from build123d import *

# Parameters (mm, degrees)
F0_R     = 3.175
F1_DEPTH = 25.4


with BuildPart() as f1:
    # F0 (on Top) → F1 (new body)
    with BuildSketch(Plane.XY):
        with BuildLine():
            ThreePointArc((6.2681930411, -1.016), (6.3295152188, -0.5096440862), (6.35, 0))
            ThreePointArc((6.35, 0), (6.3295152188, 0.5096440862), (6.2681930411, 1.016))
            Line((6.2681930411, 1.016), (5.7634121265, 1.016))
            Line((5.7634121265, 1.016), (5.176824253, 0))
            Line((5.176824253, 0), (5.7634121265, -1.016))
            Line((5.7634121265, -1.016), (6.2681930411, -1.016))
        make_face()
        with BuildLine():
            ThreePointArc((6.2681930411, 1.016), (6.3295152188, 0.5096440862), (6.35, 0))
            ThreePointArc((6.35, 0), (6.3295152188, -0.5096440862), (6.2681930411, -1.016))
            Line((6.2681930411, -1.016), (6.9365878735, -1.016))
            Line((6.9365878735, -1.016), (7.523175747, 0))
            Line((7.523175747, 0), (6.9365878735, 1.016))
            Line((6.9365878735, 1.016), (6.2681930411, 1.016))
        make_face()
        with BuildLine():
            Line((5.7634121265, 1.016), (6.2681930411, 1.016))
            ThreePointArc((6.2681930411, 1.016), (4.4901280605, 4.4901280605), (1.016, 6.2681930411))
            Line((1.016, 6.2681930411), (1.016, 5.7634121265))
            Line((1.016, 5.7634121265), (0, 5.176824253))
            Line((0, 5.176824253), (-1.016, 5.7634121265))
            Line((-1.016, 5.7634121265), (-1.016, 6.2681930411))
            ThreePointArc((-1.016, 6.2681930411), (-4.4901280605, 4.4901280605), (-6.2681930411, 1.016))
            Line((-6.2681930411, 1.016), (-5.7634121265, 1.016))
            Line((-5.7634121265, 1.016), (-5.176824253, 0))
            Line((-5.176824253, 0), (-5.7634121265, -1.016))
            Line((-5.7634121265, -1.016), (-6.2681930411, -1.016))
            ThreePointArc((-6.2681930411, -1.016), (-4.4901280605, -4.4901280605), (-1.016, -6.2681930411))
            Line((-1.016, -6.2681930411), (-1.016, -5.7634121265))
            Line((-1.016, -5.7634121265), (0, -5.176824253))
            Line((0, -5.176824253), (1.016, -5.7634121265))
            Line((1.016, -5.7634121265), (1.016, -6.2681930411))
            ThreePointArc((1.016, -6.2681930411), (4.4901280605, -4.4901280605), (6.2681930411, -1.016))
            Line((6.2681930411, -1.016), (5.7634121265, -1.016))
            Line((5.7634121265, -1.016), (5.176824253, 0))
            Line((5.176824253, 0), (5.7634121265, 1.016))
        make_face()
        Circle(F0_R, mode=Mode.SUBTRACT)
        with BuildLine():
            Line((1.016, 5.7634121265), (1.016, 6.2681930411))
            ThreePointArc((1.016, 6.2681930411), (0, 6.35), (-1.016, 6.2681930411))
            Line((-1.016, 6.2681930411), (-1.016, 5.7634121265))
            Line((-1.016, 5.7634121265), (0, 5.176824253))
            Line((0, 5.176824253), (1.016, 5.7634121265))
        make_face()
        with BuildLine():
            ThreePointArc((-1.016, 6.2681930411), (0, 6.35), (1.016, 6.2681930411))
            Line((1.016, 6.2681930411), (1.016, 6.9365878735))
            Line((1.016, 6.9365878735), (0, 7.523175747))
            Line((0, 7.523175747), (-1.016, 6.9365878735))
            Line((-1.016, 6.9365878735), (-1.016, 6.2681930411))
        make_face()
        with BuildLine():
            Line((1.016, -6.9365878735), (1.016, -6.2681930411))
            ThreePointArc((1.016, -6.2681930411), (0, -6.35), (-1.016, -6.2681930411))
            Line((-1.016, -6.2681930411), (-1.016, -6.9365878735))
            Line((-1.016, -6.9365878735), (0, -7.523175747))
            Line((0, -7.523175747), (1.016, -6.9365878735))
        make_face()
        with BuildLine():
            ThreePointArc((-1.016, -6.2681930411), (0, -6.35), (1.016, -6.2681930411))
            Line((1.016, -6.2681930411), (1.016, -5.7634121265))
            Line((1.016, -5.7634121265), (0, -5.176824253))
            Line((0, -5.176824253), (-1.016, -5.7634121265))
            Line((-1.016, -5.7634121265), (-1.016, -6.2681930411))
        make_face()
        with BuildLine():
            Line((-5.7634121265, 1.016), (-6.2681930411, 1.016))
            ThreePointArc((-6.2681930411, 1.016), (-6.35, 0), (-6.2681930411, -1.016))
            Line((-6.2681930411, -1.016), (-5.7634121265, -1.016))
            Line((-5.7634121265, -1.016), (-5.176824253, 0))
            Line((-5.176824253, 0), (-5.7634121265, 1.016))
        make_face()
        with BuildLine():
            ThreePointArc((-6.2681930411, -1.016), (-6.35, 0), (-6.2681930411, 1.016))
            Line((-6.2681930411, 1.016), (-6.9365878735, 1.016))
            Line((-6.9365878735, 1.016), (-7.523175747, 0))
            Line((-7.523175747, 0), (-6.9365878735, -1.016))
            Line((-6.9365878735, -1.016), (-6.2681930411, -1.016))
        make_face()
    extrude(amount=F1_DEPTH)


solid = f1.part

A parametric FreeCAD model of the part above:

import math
import FreeCAD as App
import Part
import Sketcher
from FreeCAD import Vector
Q = App.Units.Quantity

doc = App.newDocument("Part")
params = doc.addObject("Spreadsheet::Sheet", "Params")
for row, (alias, value) in enumerate([
    ("sketch1_diameter", "0.25 in"),
    ("sketch1_radius", "0.25 in"),
    ("pad1_length", "1 in"),
], start=1):
    params.set(f"A{row}", alias)
    params.set(f"B{row}", "=" + value)
    params.setAlias(f"B{row}", alias)

body = doc.addObject("PartDesign::Body", "Body")

# Sketch on XY plane
sketch1 = body.newObject("Sketcher::SketchObject", "Sketch")
sketch1.AttachmentSupport = (doc.getObject("XY_Plane"), [""])
sketch1.MapMode = "FlatFace"
sketch1.addGeometry(Part.LineSegment(Vector(6.3, -1, 0), Vector(6.9, -1, 0)), False)
sketch1.addGeometry(Part.LineSegment(Vector(6.9, -1, 0), Vector(7.5, 0, 0)), False)
sketch1.addGeometry(Part.LineSegment(Vector(7.5, 0, 0), Vector(6.9, 1, 0)), False)
sketch1.addGeometry(Part.LineSegment(Vector(6.9, 1, 0), Vector(6.3, 1, 0)), False)
sketch1.addGeometry(Part.ArcOfCircle(Part.Circle(Vector(0, 0, 0), Vector(0, 0, 1), 6.3), math.radians(9), math.radians(81)), False)
sketch1.addGeometry(Part.LineSegment(Vector(1, 6.3, 0), Vector(1, 6.9, 0)), False)
sketch1.addGeometry(Part.LineSegment(Vector(1, 6.9, 0), Vector(0, 7.5, 0)), False)
sketch1.addGeometry(Part.LineSegment(Vector(0, 7.5, 0), Vector(-1, 6.9, 0)), False)
sketch1.addGeometry(Part.LineSegment(Vector(-1, 6.9, 0), Vector(-1, 6.3, 0)), False)
sketch1.addGeometry(Part.ArcOfCircle(Part.Circle(Vector(0, 0, 0), Vector(0, 0, 1), 6.3), math.radians(99), math.radians(171)), False)
sketch1.addGeometry(Part.LineSegment(Vector(-6.3, 1, 0), Vector(-6.9, 1, 0)), False)
sketch1.addGeometry(Part.LineSegment(Vector(-6.9, 1, 0), Vector(-7.5, 0, 0)), False)
sketch1.addGeometry(Part.LineSegment(Vector(-7.5, 0, 0), Vector(-6.9, -1, 0)), False)
sketch1.addGeometry(Part.LineSegment(Vector(-6.9, -1, 0), Vector(-6.3, -1, 0)), False)
sketch1.addGeometry(Part.ArcOfCircle(Part.Circle(Vector(0, 0, 0), Vector(0, 0, 1), 6.3), math.radians(-171), math.radians(-99)), False)
sketch1.addGeometry(Part.LineSegment(Vector(-1, -6.3, 0), Vector(-1, -6.9, 0)), False)
sketch1.addGeometry(Part.LineSegment(Vector(-1, -6.9, 0), Vector(0, -7.5, 0)), False)
sketch1.addGeometry(Part.LineSegment(Vector(0, -7.5, 0), Vector(1, -6.9, 0)), False)
sketch1.addGeometry(Part.LineSegment(Vector(1, -6.9, 0), Vector(1, -6.3, 0)), False)
sketch1.addGeometry(Part.ArcOfCircle(Part.Circle(Vector(0, 0, 0), Vector(0, 0, 1), 6.3), math.radians(-81), math.radians(-9)), False)
sketch1.addGeometry(Part.Circle(Vector(0, 0, 0), Vector(0, 0, 1), 3.2), False)
sketch1.addConstraint(Sketcher.Constraint("Coincident", 0, 2, 1, 1))
sketch1.addConstraint(Sketcher.Constraint("Coincident", 1, 2, 2, 1))
sketch1.addConstraint(Sketcher.Constraint("Coincident", 2, 2, 3, 1))
sketch1.addConstraint(Sketcher.Constraint("Coincident", 3, 2, 4, 1))
sketch1.addConstraint(Sketcher.Constraint("Coincident", 4, 2, 5, 1))
sketch1.addConstraint(Sketcher.Constraint("Coincident", 5, 2, 6, 1))
sketch1.addConstraint(Sketcher.Constraint("Coincident", 6, 2, 7, 1))
sketch1.addConstraint(Sketcher.Constraint("Coincident", 7, 2, 8, 1))
sketch1.addConstraint(Sketcher.Constraint("Coincident", 8, 2, 9, 1))
sketch1.addConstraint(Sketcher.Constraint("Coincident", 9, 2, 10, 1))
sketch1.addConstraint(Sketcher.Constraint("Coincident", 10, 2, 11, 1))
sketch1.addConstraint(Sketcher.Constraint("Coincident", 11, 2, 12, 1))
sketch1.addConstraint(Sketcher.Constraint("Coincident", 12, 2, 13, 1))
sketch1.addConstraint(Sketcher.Constraint("Coincident", 13, 2, 14, 1))
sketch1.addConstraint(Sketcher.Constraint("Coincident", 14, 2, 15, 1))
sketch1.addConstraint(Sketcher.Constraint("Coincident", 15, 2, 16, 1))
sketch1.addConstraint(Sketcher.Constraint("Coincident", 16, 2, 17, 1))
sketch1.addConstraint(Sketcher.Constraint("Coincident", 17, 2, 18, 1))
sketch1.addConstraint(Sketcher.Constraint("Coincident", 18, 2, 19, 1))
sketch1.addConstraint(Sketcher.Constraint("Coincident", 19, 2, 0, 1))
sketch1.addConstraint(Sketcher.Constraint("Horizontal", 0))
sketch1.addConstraint(Sketcher.Constraint("Horizontal", 3))
sketch1.addConstraint(Sketcher.Constraint("Vertical", 5))
sketch1.addConstraint(Sketcher.Constraint("Vertical", 8))
sketch1.addConstraint(Sketcher.Constraint("Horizontal", 10))
sketch1.addConstraint(Sketcher.Constraint("Horizontal", 13))
sketch1.addConstraint(Sketcher.Constraint("Vertical", 15))
sketch1.addConstraint(Sketcher.Constraint("Vertical", 18))
sketch1.addConstraint(Sketcher.Constraint("Coincident", 4, 3, -1, 1))
sketch1.addConstraint(Sketcher.Constraint("Coincident", 9, 3, -1, 1))
sketch1.addConstraint(Sketcher.Constraint("Coincident", 14, 3, -1, 1))
sketch1.addConstraint(Sketcher.Constraint("Coincident", 19, 3, -1, 1))
sketch1.addConstraint(Sketcher.Constraint("Coincident", 20, 3, -1, 1))
sketch1.addConstraint(Sketcher.Constraint("Equal", 4, 9))
sketch1.addConstraint(Sketcher.Constraint("Equal", 9, 14))
sketch1.addConstraint(Sketcher.Constraint("Equal", 14, 19))
sketch1.addConstraint(Sketcher.Constraint("Symmetric", 0, 2, 10, 2, -1, 1))
sketch1.addConstraint(Sketcher.Constraint("Symmetric", 1, 2, 11, 2, -1, 1))
sketch1.addConstraint(Sketcher.Constraint("Symmetric", 2, 2, 12, 2, -1, 1))
sketch1.addConstraint(Sketcher.Constraint("Symmetric", 5, 2, 15, 2, -1, 1))
sketch1.addConstraint(Sketcher.Constraint("Symmetric", 6, 2, 16, 2, -1, 1))
sketch1.addConstraint(Sketcher.Constraint("Symmetric", 7, 2, 17, 2, -1, 1))
sketch1.addConstraint(Sketcher.Constraint("Symmetric", 5, 2, 7, 2, -2))
sketch1.addConstraint(Sketcher.Constraint("Symmetric", 2, 2, 10, 2, -2))
sketch1.addConstraint(Sketcher.Constraint("PointOnObject", 1, 2, -1))
sketch1.addConstraint(Sketcher.Constraint("PointOnObject", 6, 2, -2))
sketch1.addConstraint(Sketcher.Constraint("Perpendicular", 1, 6))
sketch1.addConstraint(Sketcher.Constraint("Equal", 13, 5))
sketch1.addConstraint(Sketcher.Constraint("Equal", 2, 6))
sketch1.addConstraint(Sketcher.Constraint("Diameter", 20, Q("0.25 in")))
sketch1.addConstraint(Sketcher.Constraint("Radius", 4, Q("0.25 in")))
sketch1.addConstraint(Sketcher.Constraint("Angle", 1, Q("60 deg")))
sketch1.addConstraint(Sketcher.Constraint("DistanceY", 0, 2, -1, 1, Q("0.04 in")))
sketch1.addConstraint(Sketcher.Constraint("DistanceX", 0, 1, 0, 2, 0.668395))
sketch1.setExpression("Constraints[49]", "Params.sketch1_diameter")
sketch1.setExpression("Constraints[50]", "Params.sketch1_radius")
pad1 = body.newObject("PartDesign::Pad", "Pad")
pad1.Profile = sketch1
pad1.setExpression("Length", "Params.pad1_length")

doc.recompute()
